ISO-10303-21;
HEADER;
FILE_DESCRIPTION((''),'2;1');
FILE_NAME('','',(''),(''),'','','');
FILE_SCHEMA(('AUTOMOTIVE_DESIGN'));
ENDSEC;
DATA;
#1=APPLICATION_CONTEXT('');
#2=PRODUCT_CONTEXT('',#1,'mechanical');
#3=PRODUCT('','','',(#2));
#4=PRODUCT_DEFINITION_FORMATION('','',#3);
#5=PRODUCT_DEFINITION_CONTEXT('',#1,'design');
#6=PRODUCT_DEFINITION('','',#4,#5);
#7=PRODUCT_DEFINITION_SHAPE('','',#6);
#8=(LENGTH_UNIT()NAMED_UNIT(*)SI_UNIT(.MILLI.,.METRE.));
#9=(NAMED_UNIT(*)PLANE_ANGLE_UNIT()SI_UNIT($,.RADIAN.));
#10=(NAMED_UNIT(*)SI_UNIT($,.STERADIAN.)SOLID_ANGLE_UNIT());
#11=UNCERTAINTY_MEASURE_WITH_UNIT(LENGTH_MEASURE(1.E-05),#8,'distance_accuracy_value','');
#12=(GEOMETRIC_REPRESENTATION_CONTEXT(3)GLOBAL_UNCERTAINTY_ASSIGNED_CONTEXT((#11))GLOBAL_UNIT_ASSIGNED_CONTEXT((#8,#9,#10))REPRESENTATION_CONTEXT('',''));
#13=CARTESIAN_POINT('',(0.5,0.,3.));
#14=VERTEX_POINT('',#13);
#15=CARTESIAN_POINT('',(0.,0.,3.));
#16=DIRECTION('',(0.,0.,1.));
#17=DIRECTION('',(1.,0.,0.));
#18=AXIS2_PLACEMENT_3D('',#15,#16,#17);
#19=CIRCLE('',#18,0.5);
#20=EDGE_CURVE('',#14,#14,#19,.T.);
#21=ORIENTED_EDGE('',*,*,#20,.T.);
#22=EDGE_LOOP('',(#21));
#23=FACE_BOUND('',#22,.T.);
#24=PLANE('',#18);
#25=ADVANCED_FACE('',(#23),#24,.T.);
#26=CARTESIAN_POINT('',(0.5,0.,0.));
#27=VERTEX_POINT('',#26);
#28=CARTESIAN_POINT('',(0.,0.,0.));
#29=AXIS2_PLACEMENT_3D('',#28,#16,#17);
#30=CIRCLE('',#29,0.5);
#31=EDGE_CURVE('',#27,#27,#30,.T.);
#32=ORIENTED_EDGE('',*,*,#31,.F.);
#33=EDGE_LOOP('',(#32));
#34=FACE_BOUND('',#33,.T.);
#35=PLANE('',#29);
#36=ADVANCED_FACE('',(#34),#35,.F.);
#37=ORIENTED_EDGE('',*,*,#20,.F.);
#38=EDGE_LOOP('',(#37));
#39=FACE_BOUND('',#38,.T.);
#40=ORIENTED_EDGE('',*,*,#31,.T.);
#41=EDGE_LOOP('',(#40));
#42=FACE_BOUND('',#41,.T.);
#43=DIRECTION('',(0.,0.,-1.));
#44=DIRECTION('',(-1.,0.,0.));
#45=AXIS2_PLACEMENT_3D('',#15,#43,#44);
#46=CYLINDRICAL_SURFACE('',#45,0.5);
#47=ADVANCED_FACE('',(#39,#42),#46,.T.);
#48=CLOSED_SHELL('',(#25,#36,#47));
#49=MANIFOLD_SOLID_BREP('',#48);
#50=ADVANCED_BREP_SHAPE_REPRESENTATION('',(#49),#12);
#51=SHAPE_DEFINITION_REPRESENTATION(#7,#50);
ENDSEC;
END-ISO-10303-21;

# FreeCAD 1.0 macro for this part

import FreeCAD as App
import Part
import Sketcher
Q = App.Units.Quantity

doc = App.newDocument("Part")
body = doc.addObject("PartDesign::Body", "Body")

# Sketch on XY plane
sketch1 = doc.addObject("Sketcher::SketchObject", "Sketch")
body.addObject(sketch1)
sketch1.AttachmentSupport = (doc.XY_Plane, [""])
sketch1.MapMode = "FlatFace"
sketch1.addGeometry(Part.Circle(App.Vector(0, 0, 0), App.Vector(0, 0, 1), 0.5), False)
sketch1.addConstraint([
    Sketcher.Constraint("Coincident", 0, 3, -1, 1),
    Sketcher.Constraint("Diameter", 0, Q("1 mm")),
])
pad1 = doc.addObject("PartDesign::Pad", "Pad")
body.addObject(pad1)
pad1.Profile = sketch1
pad1.Length = 3

doc.recompute()
